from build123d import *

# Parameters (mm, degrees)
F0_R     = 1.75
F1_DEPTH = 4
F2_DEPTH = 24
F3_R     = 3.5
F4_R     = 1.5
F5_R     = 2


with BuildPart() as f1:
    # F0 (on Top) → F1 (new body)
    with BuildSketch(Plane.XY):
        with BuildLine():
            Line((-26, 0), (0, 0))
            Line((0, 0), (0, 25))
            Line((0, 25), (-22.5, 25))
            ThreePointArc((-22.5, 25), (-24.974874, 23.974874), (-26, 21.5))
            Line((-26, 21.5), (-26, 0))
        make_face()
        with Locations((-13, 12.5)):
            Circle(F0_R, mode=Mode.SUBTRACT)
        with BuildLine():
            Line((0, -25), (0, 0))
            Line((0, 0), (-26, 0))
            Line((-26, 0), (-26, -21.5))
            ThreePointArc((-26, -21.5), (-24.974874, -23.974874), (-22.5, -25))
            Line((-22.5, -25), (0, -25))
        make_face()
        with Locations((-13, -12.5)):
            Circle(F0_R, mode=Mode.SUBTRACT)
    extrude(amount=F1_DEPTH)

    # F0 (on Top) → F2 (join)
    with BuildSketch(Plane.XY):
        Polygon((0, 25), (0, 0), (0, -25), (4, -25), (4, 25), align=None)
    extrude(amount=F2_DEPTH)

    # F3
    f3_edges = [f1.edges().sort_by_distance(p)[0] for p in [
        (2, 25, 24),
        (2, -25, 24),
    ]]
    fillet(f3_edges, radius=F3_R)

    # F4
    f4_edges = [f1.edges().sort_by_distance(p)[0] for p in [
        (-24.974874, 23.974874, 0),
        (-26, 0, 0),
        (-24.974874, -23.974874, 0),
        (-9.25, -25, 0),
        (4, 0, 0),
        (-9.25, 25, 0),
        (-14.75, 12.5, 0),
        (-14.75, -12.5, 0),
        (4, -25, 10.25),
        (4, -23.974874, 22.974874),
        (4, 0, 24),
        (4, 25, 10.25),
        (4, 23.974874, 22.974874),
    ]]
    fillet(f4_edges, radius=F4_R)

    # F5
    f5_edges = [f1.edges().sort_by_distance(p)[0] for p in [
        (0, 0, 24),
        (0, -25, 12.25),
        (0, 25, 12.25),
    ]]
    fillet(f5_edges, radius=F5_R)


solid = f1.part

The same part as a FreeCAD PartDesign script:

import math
import FreeCAD as App
import Part
import Sketcher
Q = App.Units.Quantity


def edges_at(feature, points):
    """Names of the edges that pass closest to the given points."""
    edges = feature.Shape.Edges
    near = lambda p: min(range(len(edges)), key=lambda i: edges[i].distToShape(Part.Vertex(*p))[0])
    return sorted({f"Edge{near(p) + 1}" for p in points})

doc = App.newDocument("Part")
params = doc.addObject("Spreadsheet::Sheet", "Params")
for row, (alias, value) in enumerate([
    ("sketch1_diameter", "3.5 mm"),
    ("sketch1_radius", "3.499999 mm"),
    ("sketch1_height", "43 mm"),
    ("sketch1_width", "22.5 mm"),
    ("pad1_length", "4 mm"),
    ("sketch2_width", "4 mm"),
    ("sketch2_height", "50 mm"),
    ("pad2_length", "24 mm"),
    ("fillet_radius", "3.5 mm"),
    ("fillet2_radius", "1.5 mm"),
    ("fillet3_radius", "2 mm"),
], start=1):
    params.set(f"A{row}", alias)
    params.set(f"B{row}", "=" + value)
    params.setAlias(f"B{row}", alias)

body = doc.addObject("PartDesign::Body", "Body")

sketch1 = doc.addObject("Sketcher::SketchObject", "Sketch")
body.addObject(sketch1)
sketch1.AttachmentSupport = (doc.XY_Plane, [""])
sketch1.MapMode = "FlatFace"
sketch1.addGeometry([
    Part.LineSegment(App.Vector(-26, 21.5, 0), App.Vector(-26, -21.5, 0)),
    Part.ArcOfCircle(Part.Circle(App.Vector(-22.500001, -21.500001, 0), App.Vector(0, 0, 1), 3.499999), math.radians(179.999985), math.radians(270.000015)),
    Part.LineSegment(App.Vector(-22.5, -25, 0), App.Vector(0, -25, 0)),
    Part.LineSegment(App.Vector(0, -25, 0), App.Vector(0, 25, 0)),
    Part.LineSegment(App.Vector(0, 25, 0), App.Vector(-22.5, 25, 0)),
    Part.ArcOfCircle(Part.Circle(App.Vector(-22.500001, 21.500001, 0), App.Vector(0, 0, 1), 3.499999), math.radians(89.999985), math.radians(180.000015)),
    Part.Circle(App.Vector(-13, -12.5, 0), App.Vector(0, 0, 1), 1.75),
    Part.Circle(App.Vector(-13, 12.5, 0), App.Vector(0, 0, 1), 1.75),
], False)
sketch1.addConstraint([
    Sketcher.Constraint("Tangent", 0, 2, 1, 1),
    Sketcher.Constraint("Tangent", 1, 2, 2, 1),
    Sketcher.Constraint("Coincident", 2, 2, 3, 1),
    Sketcher.Constraint("Coincident", 3, 2, 4, 1),
    Sketcher.Constraint("Tangent", 4, 2, 5, 1),
    Sketcher.Constraint("Tangent", 5, 2, 0, 1),
    Sketcher.Constraint("Vertical", 0),
    Sketcher.Constraint("Horizontal", 2),
    Sketcher.Constraint("Vertical", 3),
    Sketcher.Constraint("Horizontal", 4),
    Sketcher.Constraint("Equal", 1, 5),
    Sketcher.Constraint("Equal", 6, 7),
    Sketcher.Constraint("Symmetric", 2, 2, 3, 2, -1, 1),
    Sketcher.Constraint("Symmetric", 6, 3, 7, 3, -1),
    Sketcher.Constraint("Diameter", 6, Q("3.5 mm")),
    Sketcher.Constraint("Radius", 1, Q("3.499999 mm")),
    Sketcher.Constraint("DistanceY", 0, 2, 0, 1, Q("43 mm")),
    Sketcher.Constraint("DistanceX", 2, 1, 2, 2, Q("22.5 mm")),
    Sketcher.Constraint("DistanceX", 6, 3, -1, 1, Q("13 mm")),
    Sketcher.Constraint("DistanceY", 1, 3, 6, 3, Q("9.000001 mm")),
])
sketch1.setExpression("Constraints[14]", "Params.sketch1_diameter")
sketch1.setExpression("Constraints[15]", "Params.sketch1_radius")
sketch1.setExpression("Constraints[16]", "Params.sketch1_height")
sketch1.setExpression("Constraints[17]", "Params.sketch1_width")
pad1 = doc.addObject("PartDesign::Pad", "Pad")
body.addObject(pad1)
pad1.Profile = sketch1
pad1.setExpression("Length", "Params.pad1_length")

sketch2 = doc.addObject("Sketcher::SketchObject", "Sketch001")
body.addObject(sketch2)
sketch2.AttachmentSupport = (doc.XY_Plane, [""])
sketch2.MapMode = "FlatFace"
sketch2.addGeometry([
    Part.LineSegment(App.Vector(0, 25, 0), App.Vector(0, -25, 0)),
    Part.LineSegment(App.Vector(0, -25, 0), App.Vector(4, -25, 0)),
    Part.LineSegment(App.Vector(4, -25, 0), App.Vector(4, 25, 0)),
    Part.LineSegment(App.Vector(4, 25, 0), App.Vector(0, 25, 0)),
], False)
sketch2.addConstraint([
    Sketcher.Constraint("Coincident", 0, 2, 1, 1),
    Sketcher.Constraint("Coincident", 1, 2, 2, 1),
    Sketcher.Constraint("Coincident", 2, 2, 3, 1),
    Sketcher.Constraint("Coincident", 3, 2, 0, 1),
    Sketcher.Constraint("Vertical", 0),
    Sketcher.Constraint("Horizontal", 1),
    Sketcher.Constraint("Vertical", 2),
    Sketcher.Constraint("Horizontal", 3),
    Sketcher.Constraint("Symmetric", 0, 2, 3, 2, -1, 1),
    Sketcher.Constraint("DistanceX", 1, 1, 1, 2, Q("4 mm")),
    Sketcher.Constraint("DistanceY", 0, 2, 0, 1, Q("50 mm")),
])
sketch2.setExpression("Constraints[9]", "Params.sketch2_width")
sketch2.setExpression("Constraints[10]", "Params.sketch2_height")
pad2 = doc.addObject("PartDesign::Pad", "Pad001")
body.addObject(pad2)
pad2.Profile = sketch2
pad2.setExpression("Length", "Params.pad2_length")
doc.recompute()

fillet = doc.addObject("PartDesign::Fillet", "Fillet")
body.addObject(fillet)
fillet.Base = (pad2, edges_at(pad2, [(2, 25, 24), (2, -25, 24)]))
fillet.setExpression("Radius", "Params.fillet_radius")
doc.recompute()

fillet2 = doc.addObject("PartDesign::Fillet", "Fillet001")
body.addObject(fillet2)
fillet2.Base = (fillet, edges_at(fillet, [
    (-24.975, 23.975, 0),
    (-26, 0, 0),
    (-24.975, -23.975, 0),
    (-9.25, -25, 0),
    (4, 0, 0),
    (-9.25, 25, 0),
    (-14.75, 12.5, 0),
    (-14.75, -12.5, 0),
    (4, -25, 10.25),
    (4, -23.975, 22.975),
    (4, 0, 24),
    (4, 25, 10.25),
    (4, 23.975, 22.975),
]))
fillet2.setExpression("Radius", "Params.fillet2_radius")
doc.recompute()

fillet3 = doc.addObject("PartDesign::Fillet", "Fillet002")
body.addObject(fillet3)
fillet3.Base = (fillet2, edges_at(fillet2, [(0, 0, 24), (0, -25, 12.25), (0, 25, 12.25)]))
fillet3.setExpression("Radius", "Params.fillet3_radius")

doc.recompute()
